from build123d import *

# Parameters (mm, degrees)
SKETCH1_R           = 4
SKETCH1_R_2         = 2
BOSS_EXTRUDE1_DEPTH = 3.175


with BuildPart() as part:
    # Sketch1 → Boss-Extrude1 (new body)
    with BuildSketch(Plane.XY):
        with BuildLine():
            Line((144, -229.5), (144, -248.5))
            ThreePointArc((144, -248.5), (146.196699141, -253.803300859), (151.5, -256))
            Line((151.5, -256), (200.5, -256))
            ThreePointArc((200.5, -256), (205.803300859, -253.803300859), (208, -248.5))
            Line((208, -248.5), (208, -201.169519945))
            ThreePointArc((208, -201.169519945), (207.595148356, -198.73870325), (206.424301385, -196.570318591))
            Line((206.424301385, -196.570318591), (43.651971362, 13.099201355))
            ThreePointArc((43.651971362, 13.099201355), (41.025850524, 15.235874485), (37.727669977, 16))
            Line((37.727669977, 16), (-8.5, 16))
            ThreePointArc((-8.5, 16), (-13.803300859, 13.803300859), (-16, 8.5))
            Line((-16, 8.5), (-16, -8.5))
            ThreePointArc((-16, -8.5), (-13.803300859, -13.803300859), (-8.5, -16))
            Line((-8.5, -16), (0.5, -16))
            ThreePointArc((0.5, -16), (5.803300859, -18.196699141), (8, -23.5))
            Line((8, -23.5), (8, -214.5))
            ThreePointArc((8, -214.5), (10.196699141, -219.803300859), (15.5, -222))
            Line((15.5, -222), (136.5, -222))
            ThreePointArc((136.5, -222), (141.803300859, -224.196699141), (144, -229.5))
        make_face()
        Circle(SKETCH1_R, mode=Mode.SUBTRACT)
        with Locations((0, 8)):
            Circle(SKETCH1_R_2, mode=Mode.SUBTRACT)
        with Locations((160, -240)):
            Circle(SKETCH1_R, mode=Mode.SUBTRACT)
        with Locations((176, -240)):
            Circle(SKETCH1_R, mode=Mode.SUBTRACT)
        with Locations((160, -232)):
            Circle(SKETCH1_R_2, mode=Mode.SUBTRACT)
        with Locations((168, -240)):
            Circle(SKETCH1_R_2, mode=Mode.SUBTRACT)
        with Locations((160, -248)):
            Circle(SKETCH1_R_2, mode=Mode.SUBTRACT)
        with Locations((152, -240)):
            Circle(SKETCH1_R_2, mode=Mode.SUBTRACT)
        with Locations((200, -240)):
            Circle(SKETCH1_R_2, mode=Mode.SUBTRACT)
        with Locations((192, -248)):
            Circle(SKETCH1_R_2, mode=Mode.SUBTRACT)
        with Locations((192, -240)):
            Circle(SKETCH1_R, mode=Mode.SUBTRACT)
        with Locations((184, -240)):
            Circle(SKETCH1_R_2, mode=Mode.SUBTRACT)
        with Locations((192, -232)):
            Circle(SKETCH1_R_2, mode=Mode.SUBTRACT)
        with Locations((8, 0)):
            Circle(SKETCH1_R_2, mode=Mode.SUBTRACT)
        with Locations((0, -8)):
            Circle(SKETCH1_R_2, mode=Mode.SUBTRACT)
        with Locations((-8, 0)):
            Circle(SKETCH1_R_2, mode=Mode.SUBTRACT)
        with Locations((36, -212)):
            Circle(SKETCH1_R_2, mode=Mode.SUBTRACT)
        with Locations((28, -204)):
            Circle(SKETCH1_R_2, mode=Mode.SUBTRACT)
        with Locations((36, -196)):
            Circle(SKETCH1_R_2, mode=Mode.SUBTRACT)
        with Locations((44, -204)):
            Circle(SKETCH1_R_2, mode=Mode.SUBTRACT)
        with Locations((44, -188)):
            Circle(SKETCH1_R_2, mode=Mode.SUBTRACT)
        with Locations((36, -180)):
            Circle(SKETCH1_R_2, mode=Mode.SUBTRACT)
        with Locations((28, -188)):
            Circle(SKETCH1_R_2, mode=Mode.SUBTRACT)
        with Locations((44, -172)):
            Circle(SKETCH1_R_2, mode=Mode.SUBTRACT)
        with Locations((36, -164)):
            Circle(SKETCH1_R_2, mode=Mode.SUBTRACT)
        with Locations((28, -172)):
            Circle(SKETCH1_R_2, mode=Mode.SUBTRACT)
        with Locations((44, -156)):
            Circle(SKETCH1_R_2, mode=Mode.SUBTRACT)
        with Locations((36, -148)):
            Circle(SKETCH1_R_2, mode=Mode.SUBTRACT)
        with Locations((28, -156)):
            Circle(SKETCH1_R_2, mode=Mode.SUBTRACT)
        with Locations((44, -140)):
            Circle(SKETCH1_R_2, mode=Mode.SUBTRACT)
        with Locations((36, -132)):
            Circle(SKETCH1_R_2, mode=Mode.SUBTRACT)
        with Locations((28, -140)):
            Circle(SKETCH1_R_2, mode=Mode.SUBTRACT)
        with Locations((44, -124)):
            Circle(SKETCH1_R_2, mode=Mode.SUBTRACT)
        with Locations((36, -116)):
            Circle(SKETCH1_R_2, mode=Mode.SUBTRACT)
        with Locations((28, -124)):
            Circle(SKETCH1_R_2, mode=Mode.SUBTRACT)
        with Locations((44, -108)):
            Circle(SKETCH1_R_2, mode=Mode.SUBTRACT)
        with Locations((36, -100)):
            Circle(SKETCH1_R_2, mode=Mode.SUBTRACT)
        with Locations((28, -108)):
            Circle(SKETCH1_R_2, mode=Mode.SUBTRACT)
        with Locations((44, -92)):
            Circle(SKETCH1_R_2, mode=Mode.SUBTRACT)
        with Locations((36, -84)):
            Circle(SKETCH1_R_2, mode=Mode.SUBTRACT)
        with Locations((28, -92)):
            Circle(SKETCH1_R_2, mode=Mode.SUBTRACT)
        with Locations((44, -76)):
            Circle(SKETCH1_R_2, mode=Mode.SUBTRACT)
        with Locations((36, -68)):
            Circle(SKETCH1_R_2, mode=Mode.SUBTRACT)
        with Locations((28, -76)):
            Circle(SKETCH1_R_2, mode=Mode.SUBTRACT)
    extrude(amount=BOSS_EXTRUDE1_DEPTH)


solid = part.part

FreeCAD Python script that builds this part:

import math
import FreeCAD as App
import Part
import Sketcher

doc = App.newDocument("Part")
body = doc.addObject("PartDesign::Body", "Body")

# Sketch on XY plane
sketch1 = doc.addObject("Sketcher::SketchObject", "Sketch")
body.addObject(sketch1)
sketch1.AttachmentSupport = (doc.XY_Plane, [""])
sketch1.MapMode = "FlatFace"
sketch1.addGeometry([
    Part.LineSegment(App.Vector(144, -229.5, 0), App.Vector(144, -248.5, 0)),  # 0
    Part.ArcOfCircle(Part.Circle(App.Vector(151.5, -248.5, 0), App.Vector(0, 0, 1), 7.5), math.radians(180), math.radians(270)),  # 1
    Part.LineSegment(App.Vector(151.5, -256, 0), App.Vector(200.5, -256, 0)),  # 2
    Part.ArcOfCircle(Part.Circle(App.Vector(200.5, -248.5, 0), App.Vector(0, 0, 1), 7.5), math.radians(-90), math.radians(0)),  # 3
    Part.LineSegment(App.Vector(208, -248.5, 0), App.Vector(208, -201.2, 0)),  # 4
    Part.ArcOfCircle(Part.Circle(App.Vector(200.5, -201.2, 0), App.Vector(0, 0, 1), 7.5), math.radians(0), math.radians(38)),  # 5
    Part.LineSegment(App.Vector(206.4, -196.6, 0), App.Vector(43.7, 13.1, 0)),  # 6
    Part.ArcOfCircle(Part.Circle(App.Vector(37.7, 8.5, 0), App.Vector(0, 0, 1), 7.5), math.radians(38), math.radians(90)),  # 7
    Part.LineSegment(App.Vector(37.7, 16, 0), App.Vector(-8.5, 16, 0)),  # 8
    Part.ArcOfCircle(Part.Circle(App.Vector(-8.5, 8.5, 0), App.Vector(0, 0, 1), 7.5), math.radians(90), math.radians(180)),  # 9
    Part.LineSegment(App.Vector(-16, 8.5, 0), App.Vector(-16, -8.5, 0)),  # 10
    Part.ArcOfCircle(Part.Circle(App.Vector(-8.5, -8.5, 0), App.Vector(0, 0, 1), 7.5), math.radians(180), math.radians(270)),  # 11
    Part.LineSegment(App.Vector(-8.5, -16, 0), App.Vector(0.5, -16, 0)),  # 12
    Part.ArcOfCircle(Part.Circle(App.Vector(0.5, -23.5, 0), App.Vector(0, 0, 1), 7.5), math.radians(0), math.radians(90)),  # 13
    Part.LineSegment(App.Vector(8, -23.5, 0), App.Vector(8, -214.5, 0)),  # 14
    Part.ArcOfCircle(Part.Circle(App.Vector(15.5, -214.5, 0), App.Vector(0, 0, 1), 7.5), math.radians(180), math.radians(270)),  # 15
    Part.LineSegment(App.Vector(15.5, -222, 0), App.Vector(136.5, -222, 0)),  # 16
    Part.ArcOfCircle(Part.Circle(App.Vector(136.5, -229.5, 0), App.Vector(0, 0, 1), 7.5), math.radians(0), math.radians(90)),  # 17
    Part.Circle(App.Vector(28, -204, 0), App.Vector(0, 0, 1), 2),  # 18
    Part.Circle(App.Vector(36, -212, 0), App.Vector(0, 0, 1), 2),  # 19
    Part.Circle(App.Vector(28, -188, 0), App.Vector(0, 0, 1), 2),  # 20
    Part.Circle(App.Vector(36, -196, 0), App.Vector(0, 0, 1), 2),  # 21
    Part.Circle(App.Vector(44, -204, 0), App.Vector(0, 0, 1), 2),  # 22
    Part.Circle(App.Vector(44, -188, 0), App.Vector(0, 0, 1), 2),  # 23
    Part.Circle(App.Vector(28, -172, 0), App.Vector(0, 0, 1), 2),  # 24
    Part.Circle(App.Vector(36, -180, 0), App.Vector(0, 0, 1), 2),  # 25
    Part.Circle(App.Vector(28, -156, 0), App.Vector(0, 0, 1), 2),  # 26
    Part.Circle(App.Vector(36, -164, 0), App.Vector(0, 0, 1), 2),  # 27
    Part.Circle(App.Vector(28, -140, 0), App.Vector(0, 0, 1), 2),  # 28
    Part.Circle(App.Vector(36, -148, 0), App.Vector(0, 0, 1), 2),  # 29
    Part.Circle(App.Vector(28, -124, 0), App.Vector(0, 0, 1), 2),  # 30
    Part.Circle(App.Vector(36, -132, 0), App.Vector(0, 0, 1), 2),  # 31
    Part.Circle(App.Vector(44, -172, 0), App.Vector(0, 0, 1), 2),  # 32
    Part.Circle(App.Vector(44, -156, 0), App.Vector(0, 0, 1), 2),  # 33
    Part.Circle(App.Vector(44, -140, 0), App.Vector(0, 0, 1), 2),  # 34
    Part.Circle(App.Vector(44, -124, 0), App.Vector(0, 0, 1), 2),  # 35
    Part.Circle(App.Vector(160, -248, 0), App.Vector(0, 0, 1), 2),  # 36
    Part.Circle(App.Vector(152, -240, 0), App.Vector(0, 0, 1), 2),  # 37
    Part.Circle(App.Vector(160, -240, 0), App.Vector(0, 0, 1), 4),  # 38
    Part.Circle(App.Vector(168, -240, 0), App.Vector(0, 0, 1), 2),  # 39
    Part.Circle(App.Vector(160, -232, 0), App.Vector(0, 0, 1), 2),  # 40
    Part.Circle(App.Vector(176, -240, 0), App.Vector(0, 0, 1), 4),  # 41
    Part.Circle(App.Vector(184, -240, 0), App.Vector(0, 0, 1), 2),  # 42
    Part.Circle(App.Vector(192, -248, 0), App.Vector(0, 0, 1), 2),  # 43
    Part.Circle(App.Vector(192, -240, 0), App.Vector(0, 0, 1), 4),  # 44
    Part.Circle(App.Vector(200, -240, 0), App.Vector(0, 0, 1), 2),  # 45
    Part.Circle(App.Vector(192, -232, 0), App.Vector(0, 0, 1), 2),  # 46
    Part.Circle(App.Vector(28, -108, 0), App.Vector(0, 0, 1), 2),  # 47
    Part.Circle(App.Vector(36, -116, 0), App.Vector(0, 0, 1), 2),  # 48
    Part.Circle(App.Vector(28, -92, 0), App.Vector(0, 0, 1), 2),  # 49
    Part.Circle(App.Vector(36, -100, 0), App.Vector(0, 0, 1), 2),  # 50
    Part.Circle(App.Vector(28, -76, 0), App.Vector(0, 0, 1), 2),  # 51
    Part.Circle(App.Vector(36, -84, 0), App.Vector(0, 0, 1), 2),  # 52
    Part.Circle(App.Vector(36, -68, 0), App.Vector(0, 0, 1), 2),  # 53
    Part.Circle(App.Vector(44, -108, 0), App.Vector(0, 0, 1), 2),  # 54
    Part.Circle(App.Vector(44, -92, 0), App.Vector(0, 0, 1), 2),  # 55
    Part.Circle(App.Vector(44, -76, 0), App.Vector(0, 0, 1), 2),  # 56
    Part.Circle(App.Vector(0, -8, 0), App.Vector(0, 0, 1), 2),  # 57
    Part.Circle(App.Vector(-8, 0, 0), App.Vector(0, 0, 1), 2),  # 58
    Part.Circle(App.Vector(0, 0, 0), App.Vector(0, 0, 1), 4),  # 59
    Part.Circle(App.Vector(0, 8, 0), App.Vector(0, 0, 1), 2),  # 60
    Part.Circle(App.Vector(8, 0, 0), App.Vector(0, 0, 1), 2),  # 61
], False)
sketch1.addConstraint([
    Sketcher.Constraint("Tangent", 0, 2, 1, 1),
    Sketcher.Constraint("Tangent", 1, 2, 2, 1),
    Sketcher.Constraint("Tangent", 2, 2, 3, 1),
    Sketcher.Constraint("Tangent", 3, 2, 4, 1),
    Sketcher.Constraint("Tangent", 4, 2, 5, 1),
    Sketcher.Constraint("Tangent", 5, 2, 6, 1),
    Sketcher.Constraint("Tangent", 6, 2, 7, 1),
    Sketcher.Constraint("Tangent", 7, 2, 8, 1),
    Sketcher.Constraint("Tangent", 8, 2, 9, 1),
    Sketcher.Constraint("Tangent", 9, 2, 10, 1),
    Sketcher.Constraint("Tangent", 10, 2, 11, 1),
    Sketcher.Constraint("Tangent", 11, 2, 12, 1),
    Sketcher.Constraint("Tangent", 12, 2, 13, 2),
    Sketcher.Constraint("Tangent", 13, 1, 14, 1),
    Sketcher.Constraint("Tangent", 14, 2, 15, 1),
    Sketcher.Constraint("Tangent", 15, 2, 16, 1),
    Sketcher.Constraint("Tangent", 16, 2, 17, 2),
    Sketcher.Constraint("Tangent", 17, 1, 0, 1),
    Sketcher.Constraint("Vertical", 0),
    Sketcher.Constraint("Horizontal", 2),
    Sketcher.Constraint("Vertical", 4),
    Sketcher.Constraint("Horizontal", 8),
    Sketcher.Constraint("Vertical", 10),
    Sketcher.Constraint("Horizontal", 12),
    Sketcher.Constraint("Vertical", 14),
    Sketcher.Constraint("Horizontal", 16),
    Sketcher.Constraint("Coincident", 59, 3, -1, 1),
    Sketcher.Constraint("Equal", 1, 3),
    Sketcher.Constraint("Equal", 3, 5),
    Sketcher.Constraint("Equal", 5, 7),
    Sketcher.Constraint("Equal", 7, 9),
    Sketcher.Constraint("Equal", 9, 11),
    Sketcher.Constraint("Equal", 11, 13),
    Sketcher.Constraint("Equal", 13, 15),
    Sketcher.Constraint("Equal", 15, 17),
    Sketcher.Constraint("Equal", 18, 19),
    Sketcher.Constraint("Equal", 19, 20),
    Sketcher.Constraint("Equal", 20, 21),
    Sketcher.Constraint("Equal", 21, 22),
    Sketcher.Constraint("Equal", 22, 23),
    Sketcher.Constraint("Equal", 23, 24),
    Sketcher.Constraint("Equal", 24, 25),
    Sketcher.Constraint("Equal", 25, 26),
    Sketcher.Constraint("Equal", 26, 27),
    Sketcher.Constraint("Equal", 27, 28),
    Sketcher.Constraint("Equal", 28, 29),
    Sketcher.Constraint("Equal", 29, 30),
    Sketcher.Constraint("Equal", 30, 31),
    Sketcher.Constraint("Equal", 31, 32),
    Sketcher.Constraint("Equal", 32, 33),
    Sketcher.Constraint("Equal", 33, 34),
    Sketcher.Constraint("Equal", 34, 35),
    Sketcher.Constraint("Equal", 35, 36),
    Sketcher.Constraint("Equal", 36, 37),
    Sketcher.Constraint("Equal", 37, 39),
    Sketcher.Constraint("Equal", 39, 40),
    Sketcher.Constraint("Equal", 38, 41),
    Sketcher.Constraint("Equal", 40, 42),
    Sketcher.Constraint("Equal", 42, 43),
    Sketcher.Constraint("Equal", 41, 44),
    Sketcher.Constraint("Equal", 43, 45),
    Sketcher.Constraint("Equal", 45, 46),
    Sketcher.Constraint("Equal", 46, 47),
    Sketcher.Constraint("Equal", 47, 48),
    Sketcher.Constraint("Equal", 48, 49),
    Sketcher.Constraint("Equal", 49, 50),
    Sketcher.Constraint("Equal", 50, 51),
    Sketcher.Constraint("Equal", 51, 52),
    Sketcher.Constraint("Equal", 52, 53),
    Sketcher.Constraint("Equal", 53, 54),
    Sketcher.Constraint("Equal", 54, 55),
    Sketcher.Constraint("Equal", 55, 56),
    Sketcher.Constraint("Equal", 56, 57),
    Sketcher.Constraint("Equal", 57, 58),
    Sketcher.Constraint("Equal", 44, 59),
    Sketcher.Constraint("Equal", 58, 60),
    Sketcher.Constraint("Equal", 60, 61),
    Sketcher.Constraint("Symmetric", 57, 3, 60, 3, -1, 1),
    Sketcher.Constraint("Symmetric", 58, 3, 61, 3, -1, 1),
    Sketcher.Constraint("PointOnObject", 57, 3, -2),
    Sketcher.Constraint("PointOnObject", 58, 3, -1),
    Sketcher.Constraint("Horizontal", 18, 3, 22, 3),
    Sketcher.Constraint("Horizontal", 20, 3, 23, 3),
    Sketcher.Constraint("Horizontal", 24, 3, 32, 3),
    Sketcher.Constraint("Horizontal", 26, 3, 33, 3),
    Sketcher.Constraint("Horizontal", 28, 3, 34, 3),
    Sketcher.Constraint("Horizontal", 30, 3, 35, 3),
    Sketcher.Constraint("Horizontal", 37, 3, 38, 3),
    Sketcher.Constraint("Horizontal", 38, 3, 39, 3),
    Sketcher.Constraint("Horizontal", 39, 3, 41, 3),
    Sketcher.Constraint("Horizontal", 41, 3, 42, 3),
    Sketcher.Constraint("Horizontal", 36, 3, 43, 3),
    Sketcher.Constraint("Horizontal", 42, 3, 44, 3),
    Sketcher.Constraint("Horizontal", 44, 3, 45, 3),
    Sketcher.Constraint("Horizontal", 40, 3, 46, 3),
    Sketcher.Constraint("Horizontal", 47, 3, 54, 3),
    Sketcher.Constraint("Horizontal", 49, 3, 55, 3),
    Sketcher.Constraint("Horizontal", 51, 3, 56, 3),
    Sketcher.Constraint("Vertical", 18, 3, 20, 3),
    Sketcher.Constraint("Vertical", 19, 3, 21, 3),
    Sketcher.Constraint("Vertical", 22, 3, 23, 3),
    Sketcher.Constraint("Vertical", 20, 3, 24, 3),
    Sketcher.Constraint("Vertical", 21, 3, 25, 3),
    Sketcher.Constraint("Vertical", 24, 3, 26, 3),
    Sketcher.Constraint("Vertical", 25, 3, 27, 3),
    Sketcher.Constraint("Vertical", 26, 3, 28, 3),
    Sketcher.Constraint("Vertical", 27, 3, 29, 3),
    Sketcher.Constraint("Vertical", 28, 3, 30, 3),
    Sketcher.Constraint("Vertical", 29, 3, 31, 3),
    Sketcher.Constraint("Vertical", 23, 3, 32, 3),
    Sketcher.Constraint("Vertical", 32, 3, 33, 3),
    Sketcher.Constraint("Vertical", 33, 3, 34, 3),
    Sketcher.Constraint("Vertical", 34, 3, 35, 3),
    Sketcher.Constraint("Vertical", 36, 3, 38, 3),
    Sketcher.Constraint("Vertical", 38, 3, 40, 3),
    Sketcher.Constraint("Vertical", 43, 3, 44, 3),
    Sketcher.Constraint("Vertical", 44, 3, 46, 3),
    Sketcher.Constraint("Vertical", 30, 3, 47, 3),
    Sketcher.Constraint("Vertical", 31, 3, 48, 3),
    Sketcher.Constraint("Vertical", 47, 3, 49, 3),
    Sketcher.Constraint("Vertical", 48, 3, 50, 3),
    Sketcher.Constraint("Vertical", 49, 3, 51, 3),
    Sketcher.Constraint("Vertical", 50, 3, 52, 3),
    Sketcher.Constraint("Vertical", 52, 3, 53, 3),
    Sketcher.Constraint("Vertical", 35, 3, 54, 3),
    Sketcher.Constraint("Vertical", 54, 3, 55, 3),
    Sketcher.Constraint("Vertical", 55, 3, 56, 3),
    Sketcher.Constraint("Vertical", 61, 3, 13, 1),
    Sketcher.Constraint("Diameter", 18, 4.0),
    Sketcher.Constraint("Diameter", 38, 8.0),
    Sketcher.Constraint("Radius", 1, 7.5),
    Sketcher.Constraint("DistanceX", 2, 1, 2, 2, 49.0),
    Sketcher.Constraint("DistanceX", 12, 1, 12, 2, 9.0),
    Sketcher.Constraint("DistanceX", 16, 1, 16, 2, 121.0),
    Sketcher.Constraint("DistanceY", 0, 2, 0, 1, 19.0),
    Sketcher.Constraint("DistanceY", 10, 2, 10, 1, 17.0),
    Sketcher.Constraint("DistanceY", 14, 2, 14, 1, 191.0),
    Sketcher.Constraint("DistanceX", -1, 1, 18, 3, 28.0),
    Sketcher.Constraint("DistanceY", 18, 3, -1, 1, 204.0),
    Sketcher.Constraint("DistanceX", -1, 1, 19, 3, 36.0),
    Sketcher.Constraint("DistanceY", 19, 3, -1, 1, 212.0),
    Sketcher.Constraint("DistanceY", 20, 3, -1, 1, 188.0),
    Sketcher.Constraint("DistanceY", 21, 3, -1, 1, 196.0),
    Sketcher.Constraint("DistanceX", -1, 1, 22, 3, 44.0),
    Sketcher.Constraint("DistanceY", 24, 3, -1, 1, 172.0),
    Sketcher.Constraint("DistanceY", 25, 3, -1, 1, 180.0),
    Sketcher.Constraint("DistanceY", 26, 3, -1, 1, 156.0),
    Sketcher.Constraint("DistanceY", 27, 3, -1, 1, 164.0),
    Sketcher.Constraint("DistanceY", 28, 3, -1, 1, 140.0),
    Sketcher.Constraint("DistanceY", 29, 3, -1, 1, 148.0),
    Sketcher.Constraint("DistanceY", 30, 3, -1, 1, 124.0),
    Sketcher.Constraint("DistanceY", 31, 3, -1, 1, 132.0),
    Sketcher.Constraint("DistanceX", -1, 1, 36, 3, 160.0),
    Sketcher.Constraint("DistanceY", 36, 3, -1, 1, 248.0),
    Sketcher.Constraint("DistanceX", -1, 1, 37, 3, 152.0),
    Sketcher.Constraint("DistanceY", 37, 3, -1, 1, 240.0),
    Sketcher.Constraint("DistanceX", -1, 1, 39, 3, 168.0),
    Sketcher.Constraint("DistanceY", 40, 3, -1, 1, 232.0),
    Sketcher.Constraint("DistanceX", -1, 1, 41, 3, 176.0),
    Sketcher.Constraint("DistanceX", -1, 1, 42, 3, 184.0),
    Sketcher.Constraint("DistanceX", -1, 1, 43, 3, 192.0),
    Sketcher.Constraint("DistanceX", -1, 1, 45, 3, 200.0),
    Sketcher.Constraint("DistanceY", 47, 3, -1, 1, 108.0),
    Sketcher.Constraint("DistanceY", 48, 3, -1, 1, 116.0),
    Sketcher.Constraint("DistanceY", 49, 3, -1, 1, 92.0),
    Sketcher.Constraint("DistanceY", 50, 3, -1, 1, 100.0),
    Sketcher.Constraint("DistanceY", 51, 3, -1, 1, 76.0),
    Sketcher.Constraint("DistanceY", 52, 3, -1, 1, 84.0),
    Sketcher.Constraint("DistanceY", 53, 3, -1, 1, 68.0),
    Sketcher.Constraint("DistanceY", 57, 3, -1, 1, 8.0),
    Sketcher.Constraint("DistanceX", 58, 3, -1, 1, 8.0),
    Sketcher.Constraint("DistanceY", 1, 2, -1, 1, 256.0),
    Sketcher.Constraint("DistanceX", 8, 2, 8, 1, 46.22767),
    Sketcher.Constraint("DistanceY", 4, 1, 4, 2, 47.33048),
])
pad1 = doc.addObject("PartDesign::Pad", "Pad")
body.addObject(pad1)
pad1.Profile = sketch1
pad1.Length = 3.175

doc.recompute()
